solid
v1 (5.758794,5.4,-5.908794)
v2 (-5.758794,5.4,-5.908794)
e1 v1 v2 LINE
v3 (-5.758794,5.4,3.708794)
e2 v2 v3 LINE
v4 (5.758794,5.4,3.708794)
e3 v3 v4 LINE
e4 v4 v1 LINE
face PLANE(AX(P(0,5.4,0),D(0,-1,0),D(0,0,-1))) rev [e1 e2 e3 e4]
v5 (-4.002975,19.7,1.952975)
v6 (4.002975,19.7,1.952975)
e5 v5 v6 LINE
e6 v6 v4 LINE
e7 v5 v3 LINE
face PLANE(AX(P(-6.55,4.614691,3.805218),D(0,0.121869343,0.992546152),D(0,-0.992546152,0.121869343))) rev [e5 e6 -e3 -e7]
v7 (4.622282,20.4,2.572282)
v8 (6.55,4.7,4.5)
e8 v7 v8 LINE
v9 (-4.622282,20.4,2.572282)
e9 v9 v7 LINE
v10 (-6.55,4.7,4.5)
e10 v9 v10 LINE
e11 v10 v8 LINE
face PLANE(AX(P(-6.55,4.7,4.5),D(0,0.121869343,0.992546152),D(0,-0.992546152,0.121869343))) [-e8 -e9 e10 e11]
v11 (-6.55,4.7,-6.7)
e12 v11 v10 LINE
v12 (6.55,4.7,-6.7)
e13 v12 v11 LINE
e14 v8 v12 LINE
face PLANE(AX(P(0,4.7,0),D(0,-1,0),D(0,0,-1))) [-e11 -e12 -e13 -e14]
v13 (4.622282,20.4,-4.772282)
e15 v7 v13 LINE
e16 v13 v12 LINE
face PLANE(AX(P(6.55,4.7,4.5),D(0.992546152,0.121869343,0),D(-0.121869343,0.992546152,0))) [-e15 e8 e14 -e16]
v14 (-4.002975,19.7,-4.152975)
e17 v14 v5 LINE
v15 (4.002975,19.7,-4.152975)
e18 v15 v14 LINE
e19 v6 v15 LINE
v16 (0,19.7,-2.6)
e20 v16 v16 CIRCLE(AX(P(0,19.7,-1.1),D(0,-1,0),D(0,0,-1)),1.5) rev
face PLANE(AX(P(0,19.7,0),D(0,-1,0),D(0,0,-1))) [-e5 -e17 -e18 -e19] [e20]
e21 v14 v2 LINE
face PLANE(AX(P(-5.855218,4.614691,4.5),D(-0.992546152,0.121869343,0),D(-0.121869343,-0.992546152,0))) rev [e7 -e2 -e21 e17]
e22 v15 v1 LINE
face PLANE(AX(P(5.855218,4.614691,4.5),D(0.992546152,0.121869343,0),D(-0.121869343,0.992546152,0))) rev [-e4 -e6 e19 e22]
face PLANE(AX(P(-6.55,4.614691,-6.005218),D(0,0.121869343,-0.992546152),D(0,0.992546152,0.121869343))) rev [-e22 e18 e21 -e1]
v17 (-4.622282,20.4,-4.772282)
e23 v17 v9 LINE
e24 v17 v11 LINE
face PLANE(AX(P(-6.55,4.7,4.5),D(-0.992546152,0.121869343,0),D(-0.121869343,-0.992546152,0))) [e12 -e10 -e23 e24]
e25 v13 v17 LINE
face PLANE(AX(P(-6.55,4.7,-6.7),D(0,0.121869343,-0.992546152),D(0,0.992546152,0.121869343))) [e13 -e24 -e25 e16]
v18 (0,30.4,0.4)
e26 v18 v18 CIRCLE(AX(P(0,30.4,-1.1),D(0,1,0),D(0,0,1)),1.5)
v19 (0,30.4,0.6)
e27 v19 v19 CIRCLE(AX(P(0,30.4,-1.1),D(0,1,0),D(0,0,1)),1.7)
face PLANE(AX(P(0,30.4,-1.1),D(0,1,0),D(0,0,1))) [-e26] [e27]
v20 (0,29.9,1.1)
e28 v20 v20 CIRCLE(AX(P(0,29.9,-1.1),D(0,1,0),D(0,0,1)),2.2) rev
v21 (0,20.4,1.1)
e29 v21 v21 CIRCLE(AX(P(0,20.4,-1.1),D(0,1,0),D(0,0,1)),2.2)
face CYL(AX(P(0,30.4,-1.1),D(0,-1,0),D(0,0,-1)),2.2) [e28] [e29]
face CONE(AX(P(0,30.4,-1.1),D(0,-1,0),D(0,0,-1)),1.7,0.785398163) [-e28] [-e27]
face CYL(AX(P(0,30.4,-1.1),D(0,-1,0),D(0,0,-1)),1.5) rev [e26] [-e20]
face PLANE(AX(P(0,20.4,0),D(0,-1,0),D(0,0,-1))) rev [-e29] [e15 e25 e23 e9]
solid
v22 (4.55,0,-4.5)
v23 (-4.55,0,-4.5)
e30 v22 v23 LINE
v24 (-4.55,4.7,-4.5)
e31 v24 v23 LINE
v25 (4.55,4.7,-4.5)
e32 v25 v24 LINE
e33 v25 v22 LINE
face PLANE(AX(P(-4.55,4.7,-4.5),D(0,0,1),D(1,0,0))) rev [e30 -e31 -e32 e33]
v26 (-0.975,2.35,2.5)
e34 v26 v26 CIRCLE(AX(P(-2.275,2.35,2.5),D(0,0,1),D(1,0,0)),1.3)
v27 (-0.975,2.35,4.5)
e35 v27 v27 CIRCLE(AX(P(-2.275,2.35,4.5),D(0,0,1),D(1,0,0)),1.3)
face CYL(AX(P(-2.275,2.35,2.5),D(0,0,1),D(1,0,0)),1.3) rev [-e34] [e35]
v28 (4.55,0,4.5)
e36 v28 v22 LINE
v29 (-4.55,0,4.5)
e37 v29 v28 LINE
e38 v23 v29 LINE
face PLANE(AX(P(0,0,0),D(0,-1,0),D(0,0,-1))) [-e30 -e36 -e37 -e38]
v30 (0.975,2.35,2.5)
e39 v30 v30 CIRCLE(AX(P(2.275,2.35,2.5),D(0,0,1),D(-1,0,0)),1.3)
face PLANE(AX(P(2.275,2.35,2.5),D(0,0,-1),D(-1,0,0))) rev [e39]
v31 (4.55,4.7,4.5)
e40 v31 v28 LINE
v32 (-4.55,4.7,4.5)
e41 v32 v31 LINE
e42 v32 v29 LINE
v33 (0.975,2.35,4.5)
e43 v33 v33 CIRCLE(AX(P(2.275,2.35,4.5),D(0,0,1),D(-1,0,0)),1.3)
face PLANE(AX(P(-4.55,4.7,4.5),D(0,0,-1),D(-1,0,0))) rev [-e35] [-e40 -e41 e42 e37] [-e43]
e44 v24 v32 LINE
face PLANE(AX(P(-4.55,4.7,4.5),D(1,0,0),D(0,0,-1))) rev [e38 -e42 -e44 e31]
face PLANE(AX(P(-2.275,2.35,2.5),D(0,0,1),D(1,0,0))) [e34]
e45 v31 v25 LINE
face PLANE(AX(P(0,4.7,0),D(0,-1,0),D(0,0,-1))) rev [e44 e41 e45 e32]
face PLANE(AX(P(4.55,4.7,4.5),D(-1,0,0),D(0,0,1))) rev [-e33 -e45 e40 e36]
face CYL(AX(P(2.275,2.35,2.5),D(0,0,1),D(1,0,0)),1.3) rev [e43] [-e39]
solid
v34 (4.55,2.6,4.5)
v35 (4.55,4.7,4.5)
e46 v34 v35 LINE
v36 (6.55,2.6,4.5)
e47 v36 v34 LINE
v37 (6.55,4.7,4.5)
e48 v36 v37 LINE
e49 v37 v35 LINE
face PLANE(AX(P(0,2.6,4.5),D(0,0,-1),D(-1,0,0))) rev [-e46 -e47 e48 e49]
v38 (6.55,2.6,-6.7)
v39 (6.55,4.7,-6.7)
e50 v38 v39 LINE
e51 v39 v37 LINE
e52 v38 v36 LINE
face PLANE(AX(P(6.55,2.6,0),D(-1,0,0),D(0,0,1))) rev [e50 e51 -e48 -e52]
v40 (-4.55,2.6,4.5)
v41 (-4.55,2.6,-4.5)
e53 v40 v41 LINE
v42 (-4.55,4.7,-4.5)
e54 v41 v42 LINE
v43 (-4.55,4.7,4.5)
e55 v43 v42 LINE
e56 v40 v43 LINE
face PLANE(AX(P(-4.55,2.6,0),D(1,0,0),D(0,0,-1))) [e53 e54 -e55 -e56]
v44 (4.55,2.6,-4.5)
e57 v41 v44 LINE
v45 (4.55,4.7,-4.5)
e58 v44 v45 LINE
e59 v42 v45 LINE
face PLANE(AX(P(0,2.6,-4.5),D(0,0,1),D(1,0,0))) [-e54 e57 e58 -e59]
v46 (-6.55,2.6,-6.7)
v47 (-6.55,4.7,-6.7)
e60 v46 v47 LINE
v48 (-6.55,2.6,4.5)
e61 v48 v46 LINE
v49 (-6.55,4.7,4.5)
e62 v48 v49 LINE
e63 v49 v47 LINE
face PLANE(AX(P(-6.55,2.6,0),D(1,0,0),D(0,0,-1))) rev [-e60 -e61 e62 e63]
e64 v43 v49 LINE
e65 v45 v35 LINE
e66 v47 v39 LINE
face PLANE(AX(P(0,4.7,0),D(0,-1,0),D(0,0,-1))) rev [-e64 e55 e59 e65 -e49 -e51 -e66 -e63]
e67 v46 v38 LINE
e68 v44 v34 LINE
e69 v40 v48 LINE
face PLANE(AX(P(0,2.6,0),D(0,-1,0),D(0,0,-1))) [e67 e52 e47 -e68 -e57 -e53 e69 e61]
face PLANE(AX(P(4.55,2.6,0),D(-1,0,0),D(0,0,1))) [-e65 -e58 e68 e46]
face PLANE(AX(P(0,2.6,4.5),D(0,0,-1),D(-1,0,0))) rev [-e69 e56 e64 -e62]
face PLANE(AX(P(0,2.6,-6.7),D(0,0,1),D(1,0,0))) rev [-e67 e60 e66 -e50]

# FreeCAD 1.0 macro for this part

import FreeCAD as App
import Part
import Sketcher
from FreeCAD import Vector


def edges_at(feature, points):
    """Names of the edges that pass closest to the given points."""
    edges = feature.Shape.Edges
    near = lambda p: min(range(len(edges)), key=lambda i: edges[i].distToShape(Part.Vertex(*p))[0])
    return sorted({f"Edge{near(p) + 1}" for p in points})


def faces_at(feature, points):
    """Names of the faces that lie closest to the given points."""
    faces = feature.Shape.Faces
    near = lambda p: min(range(len(faces)), key=lambda i: faces[i].distToShape(Part.Vertex(*p))[0])
    return sorted({f"Face{near(p) + 1}" for p in points})

doc = App.newDocument("Part")
body = doc.addObject("PartDesign::Body", "Body")

# Sketch on XZ plane
sketch1 = body.newObject("Sketcher::SketchObject", "Sketch")
sketch1.AttachmentSupport = (doc.getObject("XZ_Plane"), [""])
sketch1.MapMode = "FlatFace"
sketch1.addGeometry(Part.LineSegment(Vector(-5, -4, 0), Vector(-5, 4, 0)), False)
sketch1.addGeometry(Part.LineSegment(Vector(-5, 4, 0), Vector(5, 4, 0)), False)
sketch1.addGeometry(Part.LineSegment(Vector(5, 4, 0), Vector(5, -4, 0)), False)
sketch1.addGeometry(Part.LineSegment(Vector(5, -4, 0), Vector(-5, -4, 0)), False)
sketch1.addConstraint(Sketcher.Constraint("Coincident", 0, 2, 1, 1))
sketch1.addConstraint(Sketcher.Constraint("Coincident", 1, 2, 2, 1))
sketch1.addConstraint(Sketcher.Constraint("Coincident", 2, 2, 3, 1))
sketch1.addConstraint(Sketcher.Constraint("Coincident", 3, 2, 0, 1))
sketch1.addConstraint(Sketcher.Constraint("Vertical", 0))
sketch1.addConstraint(Sketcher.Constraint("Horizontal", 1))
sketch1.addConstraint(Sketcher.Constraint("Vertical", 2))
sketch1.addConstraint(Sketcher.Constraint("Horizontal", 3))
sketch1.addConstraint(Sketcher.Constraint("Symmetric", 0, 2, 2, 2, -1, 1))
sketch1.addConstraint(Sketcher.Constraint("DistanceY", 0, 1, 0, 2, 9.0))
sketch1.addConstraint(Sketcher.Constraint("DistanceX", 1, 1, 1, 2, 9.1))
pad1 = body.newObject("PartDesign::Pad", "Pad")
pad1.Profile = sketch1
pad1.Length = 4.7
pad1.Reversed = True

# Sketch on XY plane
sketch2 = body.newObject("Sketcher::SketchObject", "Sketch001")
sketch2.AttachmentSupport = (doc.getObject("XY_Plane"), [""])
sketch2.MapMode = "FlatFace"
sketch2.AttachmentOffset = App.Placement(Vector(0, 0, 4.5), App.Rotation())
sketch2.addGeometry(Part.Circle(Vector(-2.3, 2.4, 0), Vector(0, 0, 1), 1.3), False)
sketch2.addGeometry(Part.Circle(Vector(2.3, 2.4, 0), Vector(0, 0, 1), 1.3), False)
sketch2.addConstraint(Sketcher.Constraint("Equal", 0, 1))
sketch2.addConstraint(Sketcher.Constraint("Symmetric", 0, 3, 1, 3, -2))
sketch2.addConstraint(Sketcher.Constraint("Diameter", 0, 2.6))
sketch2.addConstraint(Sketcher.Constraint("DistanceY", -1, 1, 0, 3, 2.35))
sketch2.addConstraint(Sketcher.Constraint("DistanceX", 0, 3, 1, 3, 4.55))
pocket1 = body.newObject("PartDesign::Pocket", "Pocket")
pocket1.Profile = sketch2
pocket1.Length = 2
body2 = doc.addObject("PartDesign::Body", "Body001")

# Sketch on XZ plane
sketch3 = body2.newObject("Sketcher::SketchObject", "Sketch002")
sketch3.AttachmentSupport = (doc.getObject("XZ_Plane001"), [""])
sketch3.MapMode = "FlatFace"
sketch3.AttachmentOffset = App.Placement(Vector(0, 0, -4.7), App.Rotation())
sketch3.addGeometry(Part.LineSegment(Vector(-7, -7, 0), Vector(-7, 4, 0)), False)
sketch3.addGeometry(Part.LineSegment(Vector(-7, 4, 0), Vector(7, 4, 0)), False)
sketch3.addGeometry(Part.LineSegment(Vector(7, 4, 0), Vector(7, -7, 0)), False)
sketch3.addGeometry(Part.LineSegment(Vector(7, -7, 0), Vector(-7, -7, 0)), False)
sketch3.addConstraint(Sketcher.Constraint("Coincident", 0, 2, 1, 1))
sketch3.addConstraint(Sketcher.Constraint("Coincident", 1, 2, 2, 1))
sketch3.addConstraint(Sketcher.Constraint("Coincident", 2, 2, 3, 1))
sketch3.addConstraint(Sketcher.Constraint("Coincident", 3, 2, 0, 1))
sketch3.addConstraint(Sketcher.Constraint("Vertical", 0))
sketch3.addConstraint(Sketcher.Constraint("Horizontal", 1))
sketch3.addConstraint(Sketcher.Constraint("Vertical", 2))
sketch3.addConstraint(Sketcher.Constraint("Horizontal", 3))
sketch3.addConstraint(Sketcher.Constraint("DistanceX", 1, 1, 1, 2, 13.1))
sketch3.addConstraint(Sketcher.Constraint("DistanceY", 0, 1, 0, 2, 11.2))
sketch3.addConstraint(Sketcher.Constraint("DistanceY", -1, 1, 0, 2, 4.5))
sketch3.addConstraint(Sketcher.Constraint("DistanceX", 0, 2, -1, 1, 6.55))
pad2 = body2.newObject("PartDesign::Pad", "Pad001")
pad2.Profile = sketch3
pad2.Length = 15.7
pad2.Reversed = True
pad2.TaperAngle = -7

# Sketch on XZ plane
sketch4 = body2.newObject("Sketcher::SketchObject", "Sketch003")
sketch4.AttachmentSupport = (doc.getObject("XZ_Plane001"), [""])
sketch4.MapMode = "FlatFace"
sketch4.AttachmentOffset = App.Placement(Vector(0, 0, -20.4), App.Rotation())
sketch4.addGeometry(Part.Circle(Vector(0, -1.1, 0), Vector(0, 0, 1), 2.2), False)
sketch4.addConstraint(Sketcher.Constraint("PointOnObject", 0, 3, -2))
sketch4.addConstraint(Sketcher.Constraint("Diameter", 0, 4.4))
sketch4.addConstraint(Sketcher.Constraint("DistanceY", 0, 3, -1, 1, 1.1))
pad3 = body2.newObject("PartDesign::Pad", "Pad002")
pad3.Profile = sketch4
pad3.Length = 10
pad3.Reversed = True
doc.recompute()

thickness = body2.newObject("PartDesign::Thickness", "Thickness")
thickness.Base = (pad3, faces_at(pad3, [(0, 30.4, -1.1)]))
thickness.Value = 0.7
thickness.Reversed = True
thickness.Join = "Intersection"
doc.recompute()

chamfer = body2.newObject("PartDesign::Chamfer", "Chamfer")
chamfer.Base = (thickness, edges_at(thickness, [(0, 30.4, -3.3)]))
chamfer.Size = 0.5
body3 = doc.addObject("PartDesign::Body", "Body002")

# Sketch on XZ plane
sketch5 = body3.newObject("Sketcher::SketchObject", "Sketch004")
sketch5.AttachmentSupport = (doc.getObject("XZ_Plane002"), [""])
sketch5.MapMode = "FlatFace"
sketch5.AttachmentOffset = App.Placement(Vector(0, 0, -4.7), App.Rotation())
sketch5.addGeometry(Part.LineSegment(Vector(-4.5, 4.5, 0), Vector(-6.5, 4.5, 0)), False)
sketch5.addGeometry(Part.LineSegment(Vector(-6.5, 4.5, 0), Vector(-6.5, -6.7, 0)), False)
sketch5.addGeometry(Part.LineSegment(Vector(-6.5, -6.7, 0), Vector(6.5, -6.7, 0)), False)
sketch5.addGeometry(Part.LineSegment(Vector(6.5, -6.7, 0), Vector(6.5, 4.5, 0)), False)
sketch5.addGeometry(Part.LineSegment(Vector(6.5, 4.5, 0), Vector(4.5, 4.5, 0)), False)
sketch5.addGeometry(Part.LineSegment(Vector(4.5, 4.5, 0), Vector(4.5, -4.5, 0)), False)
sketch5.addGeometry(Part.LineSegment(Vector(4.5, -4.5, 0), Vector(-4.5, -4.5, 0)), False)
sketch5.addGeometry(Part.LineSegment(Vector(-4.5, -4.5, 0), Vector(-4.5, 4.5, 0)), False)
sketch5.addConstraint(Sketcher.Constraint("Coincident", 0, 2, 1, 1))
sketch5.addConstraint(Sketcher.Constraint("Coincident", 1, 2, 2, 1))
sketch5.addConstraint(Sketcher.Constraint("Coincident", 2, 2, 3, 1))
sketch5.addConstraint(Sketcher.Constraint("Coincident", 3, 2, 4, 1))
sketch5.addConstraint(Sketcher.Constraint("Coincident", 4, 2, 5, 1))
sketch5.addConstraint(Sketcher.Constraint("Coincident", 5, 2, 6, 1))
sketch5.addConstraint(Sketcher.Constraint("Coincident", 6, 2, 7, 1))
sketch5.addConstraint(Sketcher.Constraint("Coincident", 7, 2, 0, 1))
sketch5.addConstraint(Sketcher.Constraint("Horizontal", 0))
sketch5.addConstraint(Sketcher.Constraint("Vertical", 1))
sketch5.addConstraint(Sketcher.Constraint("Horizontal", 2))
sketch5.addConstraint(Sketcher.Constraint("Vertical", 3))
sketch5.addConstraint(Sketcher.Constraint("Horizontal", 4))
sketch5.addConstraint(Sketcher.Constraint("Vertical", 5))
sketch5.addConstraint(Sketcher.Constraint("Horizontal", 6))
sketch5.addConstraint(Sketcher.Constraint("Vertical", 7))
sketch5.addConstraint(Sketcher.Constraint("Symmetric", 4, 2, 6, 2, -1, 1))
sketch5.addConstraint(Sketcher.Constraint("Symmetric", 0, 2, 3, 2, -2))
sketch5.addConstraint(Sketcher.Constraint("DistanceX", 0, 2, 0, 1, 2.0))
sketch5.addConstraint(Sketcher.Constraint("DistanceY", 5, 2, 5, 1, 9.0))
sketch5.addConstraint(Sketcher.Constraint("DistanceX", 2, 1, 2, 2, 13.1))
sketch5.addConstraint(Sketcher.Constraint("DistanceY", 1, 2, 1, 1, 11.2))
pad4 = body3.newObject("PartDesign::Pad", "Pad003")
pad4.Profile = sketch5
pad4.Length = 2.1

doc.recompute()
